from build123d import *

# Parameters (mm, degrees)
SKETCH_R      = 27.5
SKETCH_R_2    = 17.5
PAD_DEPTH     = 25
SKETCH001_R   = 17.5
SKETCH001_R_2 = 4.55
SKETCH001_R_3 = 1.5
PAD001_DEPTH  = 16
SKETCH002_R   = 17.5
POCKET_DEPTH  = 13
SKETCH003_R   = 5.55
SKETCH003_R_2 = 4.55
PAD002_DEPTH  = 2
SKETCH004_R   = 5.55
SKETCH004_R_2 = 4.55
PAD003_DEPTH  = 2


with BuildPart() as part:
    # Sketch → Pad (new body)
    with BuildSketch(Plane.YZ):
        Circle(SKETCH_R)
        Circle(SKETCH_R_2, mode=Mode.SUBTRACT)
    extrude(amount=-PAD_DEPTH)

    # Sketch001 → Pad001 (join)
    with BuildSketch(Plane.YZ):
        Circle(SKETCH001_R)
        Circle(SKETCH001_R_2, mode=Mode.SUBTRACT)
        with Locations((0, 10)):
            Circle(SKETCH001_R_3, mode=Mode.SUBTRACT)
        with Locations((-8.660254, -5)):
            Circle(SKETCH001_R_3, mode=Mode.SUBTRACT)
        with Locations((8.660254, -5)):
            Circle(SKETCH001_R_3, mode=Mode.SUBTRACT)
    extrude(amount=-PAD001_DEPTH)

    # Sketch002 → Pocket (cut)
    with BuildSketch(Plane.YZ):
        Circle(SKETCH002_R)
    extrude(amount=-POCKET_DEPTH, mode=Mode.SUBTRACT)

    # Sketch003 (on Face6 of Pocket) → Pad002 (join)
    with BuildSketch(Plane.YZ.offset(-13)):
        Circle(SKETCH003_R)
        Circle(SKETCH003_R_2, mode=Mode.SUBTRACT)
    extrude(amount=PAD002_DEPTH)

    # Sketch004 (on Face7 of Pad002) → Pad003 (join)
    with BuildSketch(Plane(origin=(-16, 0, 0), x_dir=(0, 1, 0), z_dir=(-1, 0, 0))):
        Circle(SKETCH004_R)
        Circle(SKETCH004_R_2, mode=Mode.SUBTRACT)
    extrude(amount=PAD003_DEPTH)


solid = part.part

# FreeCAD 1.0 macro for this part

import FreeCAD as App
import Part
import Sketcher
from FreeCAD import Vector

doc = App.newDocument("Part")
body = doc.addObject("PartDesign::Body", "Body")

sketch1 = doc.addObject("Sketcher::SketchObject", "Sketch")
body.addObject(sketch1)
sketch1.AttachmentSupport = (doc.YZ_Plane, [""])
sketch1.MapMode = "FlatFace"
sketch1.addGeometry([
    Part.Circle(Vector(0, 0, 0), Vector(0, 0, 1), 27.5),
    Part.Circle(Vector(0, 0, 0), Vector(0, 0, 1), 17.5),
], False)
sketch1.addConstraint([
    Sketcher.Constraint("Coincident", 0, 3, -1, 1),
    Sketcher.Constraint("Coincident", 1, 3, -1, 1),
    Sketcher.Constraint("Diameter", 0, 55.0),
    Sketcher.Constraint("Diameter", 1, 35.0),
])
pad1 = doc.addObject("PartDesign::Pad", "Pad")
body.addObject(pad1)
pad1.Profile = sketch1
pad1.Length = 25
pad1.Reversed = True

sketch2 = doc.addObject("Sketcher::SketchObject", "Sketch001")
body.addObject(sketch2)
sketch2.AttachmentSupport = (doc.YZ_Plane, [""])
sketch2.MapMode = "FlatFace"
sketch2.addGeometry([
    Part.Circle(Vector(0, 0, 0), Vector(0, 0, 1), 17.5),
    Part.Circle(Vector(-8.660254, -5, 0), Vector(0, 0, 1), 1.5),
    Part.Circle(Vector(8.660254, -5, 0), Vector(0, 0, 1), 1.5),
    Part.Circle(Vector(0, 0, 0), Vector(0, 0, 1), 4.55),
    Part.Circle(Vector(0, 10, 0), Vector(0, 0, 1), 1.5),
], False)
sketch2.addConstraint([
    Sketcher.Constraint("Coincident", 0, 3, -1, 1),
    Sketcher.Constraint("Coincident", 3, 3, -1, 1),
    Sketcher.Constraint("Equal", 1, 2),
    Sketcher.Constraint("Equal", 2, 4),
    Sketcher.Constraint("Symmetric", 1, 3, 2, 3, -2),
    Sketcher.Constraint("PointOnObject", 4, 3, -2),
    Sketcher.Constraint("Diameter", 0, 35.0),
    Sketcher.Constraint("Diameter", 1, 3.0),
    Sketcher.Constraint("Diameter", 3, 9.1),
    Sketcher.Constraint("DistanceY", 1, 3, -1, 1, 5.0),
    Sketcher.Constraint("DistanceY", -1, 1, 4, 3, 10.0),
    Sketcher.Constraint("DistanceX", 1, 3, 2, 3, 17.320508),
])
pad2 = doc.addObject("PartDesign::Pad", "Pad001")
body.addObject(pad2)
pad2.Profile = sketch2
pad2.Length = 16
pad2.Reversed = True

sketch3 = doc.addObject("Sketcher::SketchObject", "Sketch002")
body.addObject(sketch3)
sketch3.AttachmentSupport = (doc.YZ_Plane, [""])
sketch3.MapMode = "FlatFace"
sketch3.addGeometry(Part.Circle(Vector(0, 0, 0), Vector(0, 0, 1), 17.5), False)
sketch3.addConstraint([
    Sketcher.Constraint("Coincident", 0, 3, -1, 1),
    Sketcher.Constraint("Diameter", 0, 35.0),
])
pocket1 = doc.addObject("PartDesign::Pocket", "Pocket")
body.addObject(pocket1)
pocket1.Profile = sketch3
pocket1.Length = 13

sketch4 = doc.addObject("Sketcher::SketchObject", "Sketch003")
body.addObject(sketch4)
sketch4.AttachmentSupport = (doc.YZ_Plane, [""])
sketch4.MapMode = "FlatFace"
sketch4.AttachmentOffset = App.Placement(Vector(0, 0, -13), App.Rotation())
sketch4.addGeometry([
    Part.Circle(Vector(0, 0, 0), Vector(0, 0, 1), 5.55),
    Part.Circle(Vector(0, 0, 0), Vector(0, 0, 1), 4.55),
], False)
sketch4.addConstraint([
    Sketcher.Constraint("Coincident", 0, 3, -1, 1),
    Sketcher.Constraint("Coincident", 1, 3, -1, 1),
    Sketcher.Constraint("Diameter", 0, 11.1),
    Sketcher.Constraint("Diameter", 1, 9.1),
])
pad3 = doc.addObject("PartDesign::Pad", "Pad002")
body.addObject(pad3)
pad3.Profile = sketch4
pad3.Length = 2

sketch5 = doc.addObject("Sketcher::SketchObject", "Sketch004")
body.addObject(sketch5)
sketch5.AttachmentSupport = (doc.YZ_Plane, [""])
sketch5.MapMode = "FlatFace"
sketch5.AttachmentOffset = App.Placement(Vector(0, 0, -16), App.Rotation())
sketch5.addGeometry([
    Part.Circle(Vector(0, 0, 0), Vector(0, 0, 1), 5.55),
    Part.Circle(Vector(0, 0, 0), Vector(0, 0, 1), 4.55),
], False)
sketch5.addConstraint([
    Sketcher.Constraint("Coincident", 0, 3, -1, 1),
    Sketcher.Constraint("Coincident", 1, 3, -1, 1),
    Sketcher.Constraint("Diameter", 0, 11.1),
    Sketcher.Constraint("Diameter", 1, 9.1),
])
pad4 = doc.addObject("PartDesign::Pad", "Pad003")
body.addObject(pad4)
pad4.Profile = sketch5
pad4.Length = 2
pad4.Reversed = True

doc.recompute()
